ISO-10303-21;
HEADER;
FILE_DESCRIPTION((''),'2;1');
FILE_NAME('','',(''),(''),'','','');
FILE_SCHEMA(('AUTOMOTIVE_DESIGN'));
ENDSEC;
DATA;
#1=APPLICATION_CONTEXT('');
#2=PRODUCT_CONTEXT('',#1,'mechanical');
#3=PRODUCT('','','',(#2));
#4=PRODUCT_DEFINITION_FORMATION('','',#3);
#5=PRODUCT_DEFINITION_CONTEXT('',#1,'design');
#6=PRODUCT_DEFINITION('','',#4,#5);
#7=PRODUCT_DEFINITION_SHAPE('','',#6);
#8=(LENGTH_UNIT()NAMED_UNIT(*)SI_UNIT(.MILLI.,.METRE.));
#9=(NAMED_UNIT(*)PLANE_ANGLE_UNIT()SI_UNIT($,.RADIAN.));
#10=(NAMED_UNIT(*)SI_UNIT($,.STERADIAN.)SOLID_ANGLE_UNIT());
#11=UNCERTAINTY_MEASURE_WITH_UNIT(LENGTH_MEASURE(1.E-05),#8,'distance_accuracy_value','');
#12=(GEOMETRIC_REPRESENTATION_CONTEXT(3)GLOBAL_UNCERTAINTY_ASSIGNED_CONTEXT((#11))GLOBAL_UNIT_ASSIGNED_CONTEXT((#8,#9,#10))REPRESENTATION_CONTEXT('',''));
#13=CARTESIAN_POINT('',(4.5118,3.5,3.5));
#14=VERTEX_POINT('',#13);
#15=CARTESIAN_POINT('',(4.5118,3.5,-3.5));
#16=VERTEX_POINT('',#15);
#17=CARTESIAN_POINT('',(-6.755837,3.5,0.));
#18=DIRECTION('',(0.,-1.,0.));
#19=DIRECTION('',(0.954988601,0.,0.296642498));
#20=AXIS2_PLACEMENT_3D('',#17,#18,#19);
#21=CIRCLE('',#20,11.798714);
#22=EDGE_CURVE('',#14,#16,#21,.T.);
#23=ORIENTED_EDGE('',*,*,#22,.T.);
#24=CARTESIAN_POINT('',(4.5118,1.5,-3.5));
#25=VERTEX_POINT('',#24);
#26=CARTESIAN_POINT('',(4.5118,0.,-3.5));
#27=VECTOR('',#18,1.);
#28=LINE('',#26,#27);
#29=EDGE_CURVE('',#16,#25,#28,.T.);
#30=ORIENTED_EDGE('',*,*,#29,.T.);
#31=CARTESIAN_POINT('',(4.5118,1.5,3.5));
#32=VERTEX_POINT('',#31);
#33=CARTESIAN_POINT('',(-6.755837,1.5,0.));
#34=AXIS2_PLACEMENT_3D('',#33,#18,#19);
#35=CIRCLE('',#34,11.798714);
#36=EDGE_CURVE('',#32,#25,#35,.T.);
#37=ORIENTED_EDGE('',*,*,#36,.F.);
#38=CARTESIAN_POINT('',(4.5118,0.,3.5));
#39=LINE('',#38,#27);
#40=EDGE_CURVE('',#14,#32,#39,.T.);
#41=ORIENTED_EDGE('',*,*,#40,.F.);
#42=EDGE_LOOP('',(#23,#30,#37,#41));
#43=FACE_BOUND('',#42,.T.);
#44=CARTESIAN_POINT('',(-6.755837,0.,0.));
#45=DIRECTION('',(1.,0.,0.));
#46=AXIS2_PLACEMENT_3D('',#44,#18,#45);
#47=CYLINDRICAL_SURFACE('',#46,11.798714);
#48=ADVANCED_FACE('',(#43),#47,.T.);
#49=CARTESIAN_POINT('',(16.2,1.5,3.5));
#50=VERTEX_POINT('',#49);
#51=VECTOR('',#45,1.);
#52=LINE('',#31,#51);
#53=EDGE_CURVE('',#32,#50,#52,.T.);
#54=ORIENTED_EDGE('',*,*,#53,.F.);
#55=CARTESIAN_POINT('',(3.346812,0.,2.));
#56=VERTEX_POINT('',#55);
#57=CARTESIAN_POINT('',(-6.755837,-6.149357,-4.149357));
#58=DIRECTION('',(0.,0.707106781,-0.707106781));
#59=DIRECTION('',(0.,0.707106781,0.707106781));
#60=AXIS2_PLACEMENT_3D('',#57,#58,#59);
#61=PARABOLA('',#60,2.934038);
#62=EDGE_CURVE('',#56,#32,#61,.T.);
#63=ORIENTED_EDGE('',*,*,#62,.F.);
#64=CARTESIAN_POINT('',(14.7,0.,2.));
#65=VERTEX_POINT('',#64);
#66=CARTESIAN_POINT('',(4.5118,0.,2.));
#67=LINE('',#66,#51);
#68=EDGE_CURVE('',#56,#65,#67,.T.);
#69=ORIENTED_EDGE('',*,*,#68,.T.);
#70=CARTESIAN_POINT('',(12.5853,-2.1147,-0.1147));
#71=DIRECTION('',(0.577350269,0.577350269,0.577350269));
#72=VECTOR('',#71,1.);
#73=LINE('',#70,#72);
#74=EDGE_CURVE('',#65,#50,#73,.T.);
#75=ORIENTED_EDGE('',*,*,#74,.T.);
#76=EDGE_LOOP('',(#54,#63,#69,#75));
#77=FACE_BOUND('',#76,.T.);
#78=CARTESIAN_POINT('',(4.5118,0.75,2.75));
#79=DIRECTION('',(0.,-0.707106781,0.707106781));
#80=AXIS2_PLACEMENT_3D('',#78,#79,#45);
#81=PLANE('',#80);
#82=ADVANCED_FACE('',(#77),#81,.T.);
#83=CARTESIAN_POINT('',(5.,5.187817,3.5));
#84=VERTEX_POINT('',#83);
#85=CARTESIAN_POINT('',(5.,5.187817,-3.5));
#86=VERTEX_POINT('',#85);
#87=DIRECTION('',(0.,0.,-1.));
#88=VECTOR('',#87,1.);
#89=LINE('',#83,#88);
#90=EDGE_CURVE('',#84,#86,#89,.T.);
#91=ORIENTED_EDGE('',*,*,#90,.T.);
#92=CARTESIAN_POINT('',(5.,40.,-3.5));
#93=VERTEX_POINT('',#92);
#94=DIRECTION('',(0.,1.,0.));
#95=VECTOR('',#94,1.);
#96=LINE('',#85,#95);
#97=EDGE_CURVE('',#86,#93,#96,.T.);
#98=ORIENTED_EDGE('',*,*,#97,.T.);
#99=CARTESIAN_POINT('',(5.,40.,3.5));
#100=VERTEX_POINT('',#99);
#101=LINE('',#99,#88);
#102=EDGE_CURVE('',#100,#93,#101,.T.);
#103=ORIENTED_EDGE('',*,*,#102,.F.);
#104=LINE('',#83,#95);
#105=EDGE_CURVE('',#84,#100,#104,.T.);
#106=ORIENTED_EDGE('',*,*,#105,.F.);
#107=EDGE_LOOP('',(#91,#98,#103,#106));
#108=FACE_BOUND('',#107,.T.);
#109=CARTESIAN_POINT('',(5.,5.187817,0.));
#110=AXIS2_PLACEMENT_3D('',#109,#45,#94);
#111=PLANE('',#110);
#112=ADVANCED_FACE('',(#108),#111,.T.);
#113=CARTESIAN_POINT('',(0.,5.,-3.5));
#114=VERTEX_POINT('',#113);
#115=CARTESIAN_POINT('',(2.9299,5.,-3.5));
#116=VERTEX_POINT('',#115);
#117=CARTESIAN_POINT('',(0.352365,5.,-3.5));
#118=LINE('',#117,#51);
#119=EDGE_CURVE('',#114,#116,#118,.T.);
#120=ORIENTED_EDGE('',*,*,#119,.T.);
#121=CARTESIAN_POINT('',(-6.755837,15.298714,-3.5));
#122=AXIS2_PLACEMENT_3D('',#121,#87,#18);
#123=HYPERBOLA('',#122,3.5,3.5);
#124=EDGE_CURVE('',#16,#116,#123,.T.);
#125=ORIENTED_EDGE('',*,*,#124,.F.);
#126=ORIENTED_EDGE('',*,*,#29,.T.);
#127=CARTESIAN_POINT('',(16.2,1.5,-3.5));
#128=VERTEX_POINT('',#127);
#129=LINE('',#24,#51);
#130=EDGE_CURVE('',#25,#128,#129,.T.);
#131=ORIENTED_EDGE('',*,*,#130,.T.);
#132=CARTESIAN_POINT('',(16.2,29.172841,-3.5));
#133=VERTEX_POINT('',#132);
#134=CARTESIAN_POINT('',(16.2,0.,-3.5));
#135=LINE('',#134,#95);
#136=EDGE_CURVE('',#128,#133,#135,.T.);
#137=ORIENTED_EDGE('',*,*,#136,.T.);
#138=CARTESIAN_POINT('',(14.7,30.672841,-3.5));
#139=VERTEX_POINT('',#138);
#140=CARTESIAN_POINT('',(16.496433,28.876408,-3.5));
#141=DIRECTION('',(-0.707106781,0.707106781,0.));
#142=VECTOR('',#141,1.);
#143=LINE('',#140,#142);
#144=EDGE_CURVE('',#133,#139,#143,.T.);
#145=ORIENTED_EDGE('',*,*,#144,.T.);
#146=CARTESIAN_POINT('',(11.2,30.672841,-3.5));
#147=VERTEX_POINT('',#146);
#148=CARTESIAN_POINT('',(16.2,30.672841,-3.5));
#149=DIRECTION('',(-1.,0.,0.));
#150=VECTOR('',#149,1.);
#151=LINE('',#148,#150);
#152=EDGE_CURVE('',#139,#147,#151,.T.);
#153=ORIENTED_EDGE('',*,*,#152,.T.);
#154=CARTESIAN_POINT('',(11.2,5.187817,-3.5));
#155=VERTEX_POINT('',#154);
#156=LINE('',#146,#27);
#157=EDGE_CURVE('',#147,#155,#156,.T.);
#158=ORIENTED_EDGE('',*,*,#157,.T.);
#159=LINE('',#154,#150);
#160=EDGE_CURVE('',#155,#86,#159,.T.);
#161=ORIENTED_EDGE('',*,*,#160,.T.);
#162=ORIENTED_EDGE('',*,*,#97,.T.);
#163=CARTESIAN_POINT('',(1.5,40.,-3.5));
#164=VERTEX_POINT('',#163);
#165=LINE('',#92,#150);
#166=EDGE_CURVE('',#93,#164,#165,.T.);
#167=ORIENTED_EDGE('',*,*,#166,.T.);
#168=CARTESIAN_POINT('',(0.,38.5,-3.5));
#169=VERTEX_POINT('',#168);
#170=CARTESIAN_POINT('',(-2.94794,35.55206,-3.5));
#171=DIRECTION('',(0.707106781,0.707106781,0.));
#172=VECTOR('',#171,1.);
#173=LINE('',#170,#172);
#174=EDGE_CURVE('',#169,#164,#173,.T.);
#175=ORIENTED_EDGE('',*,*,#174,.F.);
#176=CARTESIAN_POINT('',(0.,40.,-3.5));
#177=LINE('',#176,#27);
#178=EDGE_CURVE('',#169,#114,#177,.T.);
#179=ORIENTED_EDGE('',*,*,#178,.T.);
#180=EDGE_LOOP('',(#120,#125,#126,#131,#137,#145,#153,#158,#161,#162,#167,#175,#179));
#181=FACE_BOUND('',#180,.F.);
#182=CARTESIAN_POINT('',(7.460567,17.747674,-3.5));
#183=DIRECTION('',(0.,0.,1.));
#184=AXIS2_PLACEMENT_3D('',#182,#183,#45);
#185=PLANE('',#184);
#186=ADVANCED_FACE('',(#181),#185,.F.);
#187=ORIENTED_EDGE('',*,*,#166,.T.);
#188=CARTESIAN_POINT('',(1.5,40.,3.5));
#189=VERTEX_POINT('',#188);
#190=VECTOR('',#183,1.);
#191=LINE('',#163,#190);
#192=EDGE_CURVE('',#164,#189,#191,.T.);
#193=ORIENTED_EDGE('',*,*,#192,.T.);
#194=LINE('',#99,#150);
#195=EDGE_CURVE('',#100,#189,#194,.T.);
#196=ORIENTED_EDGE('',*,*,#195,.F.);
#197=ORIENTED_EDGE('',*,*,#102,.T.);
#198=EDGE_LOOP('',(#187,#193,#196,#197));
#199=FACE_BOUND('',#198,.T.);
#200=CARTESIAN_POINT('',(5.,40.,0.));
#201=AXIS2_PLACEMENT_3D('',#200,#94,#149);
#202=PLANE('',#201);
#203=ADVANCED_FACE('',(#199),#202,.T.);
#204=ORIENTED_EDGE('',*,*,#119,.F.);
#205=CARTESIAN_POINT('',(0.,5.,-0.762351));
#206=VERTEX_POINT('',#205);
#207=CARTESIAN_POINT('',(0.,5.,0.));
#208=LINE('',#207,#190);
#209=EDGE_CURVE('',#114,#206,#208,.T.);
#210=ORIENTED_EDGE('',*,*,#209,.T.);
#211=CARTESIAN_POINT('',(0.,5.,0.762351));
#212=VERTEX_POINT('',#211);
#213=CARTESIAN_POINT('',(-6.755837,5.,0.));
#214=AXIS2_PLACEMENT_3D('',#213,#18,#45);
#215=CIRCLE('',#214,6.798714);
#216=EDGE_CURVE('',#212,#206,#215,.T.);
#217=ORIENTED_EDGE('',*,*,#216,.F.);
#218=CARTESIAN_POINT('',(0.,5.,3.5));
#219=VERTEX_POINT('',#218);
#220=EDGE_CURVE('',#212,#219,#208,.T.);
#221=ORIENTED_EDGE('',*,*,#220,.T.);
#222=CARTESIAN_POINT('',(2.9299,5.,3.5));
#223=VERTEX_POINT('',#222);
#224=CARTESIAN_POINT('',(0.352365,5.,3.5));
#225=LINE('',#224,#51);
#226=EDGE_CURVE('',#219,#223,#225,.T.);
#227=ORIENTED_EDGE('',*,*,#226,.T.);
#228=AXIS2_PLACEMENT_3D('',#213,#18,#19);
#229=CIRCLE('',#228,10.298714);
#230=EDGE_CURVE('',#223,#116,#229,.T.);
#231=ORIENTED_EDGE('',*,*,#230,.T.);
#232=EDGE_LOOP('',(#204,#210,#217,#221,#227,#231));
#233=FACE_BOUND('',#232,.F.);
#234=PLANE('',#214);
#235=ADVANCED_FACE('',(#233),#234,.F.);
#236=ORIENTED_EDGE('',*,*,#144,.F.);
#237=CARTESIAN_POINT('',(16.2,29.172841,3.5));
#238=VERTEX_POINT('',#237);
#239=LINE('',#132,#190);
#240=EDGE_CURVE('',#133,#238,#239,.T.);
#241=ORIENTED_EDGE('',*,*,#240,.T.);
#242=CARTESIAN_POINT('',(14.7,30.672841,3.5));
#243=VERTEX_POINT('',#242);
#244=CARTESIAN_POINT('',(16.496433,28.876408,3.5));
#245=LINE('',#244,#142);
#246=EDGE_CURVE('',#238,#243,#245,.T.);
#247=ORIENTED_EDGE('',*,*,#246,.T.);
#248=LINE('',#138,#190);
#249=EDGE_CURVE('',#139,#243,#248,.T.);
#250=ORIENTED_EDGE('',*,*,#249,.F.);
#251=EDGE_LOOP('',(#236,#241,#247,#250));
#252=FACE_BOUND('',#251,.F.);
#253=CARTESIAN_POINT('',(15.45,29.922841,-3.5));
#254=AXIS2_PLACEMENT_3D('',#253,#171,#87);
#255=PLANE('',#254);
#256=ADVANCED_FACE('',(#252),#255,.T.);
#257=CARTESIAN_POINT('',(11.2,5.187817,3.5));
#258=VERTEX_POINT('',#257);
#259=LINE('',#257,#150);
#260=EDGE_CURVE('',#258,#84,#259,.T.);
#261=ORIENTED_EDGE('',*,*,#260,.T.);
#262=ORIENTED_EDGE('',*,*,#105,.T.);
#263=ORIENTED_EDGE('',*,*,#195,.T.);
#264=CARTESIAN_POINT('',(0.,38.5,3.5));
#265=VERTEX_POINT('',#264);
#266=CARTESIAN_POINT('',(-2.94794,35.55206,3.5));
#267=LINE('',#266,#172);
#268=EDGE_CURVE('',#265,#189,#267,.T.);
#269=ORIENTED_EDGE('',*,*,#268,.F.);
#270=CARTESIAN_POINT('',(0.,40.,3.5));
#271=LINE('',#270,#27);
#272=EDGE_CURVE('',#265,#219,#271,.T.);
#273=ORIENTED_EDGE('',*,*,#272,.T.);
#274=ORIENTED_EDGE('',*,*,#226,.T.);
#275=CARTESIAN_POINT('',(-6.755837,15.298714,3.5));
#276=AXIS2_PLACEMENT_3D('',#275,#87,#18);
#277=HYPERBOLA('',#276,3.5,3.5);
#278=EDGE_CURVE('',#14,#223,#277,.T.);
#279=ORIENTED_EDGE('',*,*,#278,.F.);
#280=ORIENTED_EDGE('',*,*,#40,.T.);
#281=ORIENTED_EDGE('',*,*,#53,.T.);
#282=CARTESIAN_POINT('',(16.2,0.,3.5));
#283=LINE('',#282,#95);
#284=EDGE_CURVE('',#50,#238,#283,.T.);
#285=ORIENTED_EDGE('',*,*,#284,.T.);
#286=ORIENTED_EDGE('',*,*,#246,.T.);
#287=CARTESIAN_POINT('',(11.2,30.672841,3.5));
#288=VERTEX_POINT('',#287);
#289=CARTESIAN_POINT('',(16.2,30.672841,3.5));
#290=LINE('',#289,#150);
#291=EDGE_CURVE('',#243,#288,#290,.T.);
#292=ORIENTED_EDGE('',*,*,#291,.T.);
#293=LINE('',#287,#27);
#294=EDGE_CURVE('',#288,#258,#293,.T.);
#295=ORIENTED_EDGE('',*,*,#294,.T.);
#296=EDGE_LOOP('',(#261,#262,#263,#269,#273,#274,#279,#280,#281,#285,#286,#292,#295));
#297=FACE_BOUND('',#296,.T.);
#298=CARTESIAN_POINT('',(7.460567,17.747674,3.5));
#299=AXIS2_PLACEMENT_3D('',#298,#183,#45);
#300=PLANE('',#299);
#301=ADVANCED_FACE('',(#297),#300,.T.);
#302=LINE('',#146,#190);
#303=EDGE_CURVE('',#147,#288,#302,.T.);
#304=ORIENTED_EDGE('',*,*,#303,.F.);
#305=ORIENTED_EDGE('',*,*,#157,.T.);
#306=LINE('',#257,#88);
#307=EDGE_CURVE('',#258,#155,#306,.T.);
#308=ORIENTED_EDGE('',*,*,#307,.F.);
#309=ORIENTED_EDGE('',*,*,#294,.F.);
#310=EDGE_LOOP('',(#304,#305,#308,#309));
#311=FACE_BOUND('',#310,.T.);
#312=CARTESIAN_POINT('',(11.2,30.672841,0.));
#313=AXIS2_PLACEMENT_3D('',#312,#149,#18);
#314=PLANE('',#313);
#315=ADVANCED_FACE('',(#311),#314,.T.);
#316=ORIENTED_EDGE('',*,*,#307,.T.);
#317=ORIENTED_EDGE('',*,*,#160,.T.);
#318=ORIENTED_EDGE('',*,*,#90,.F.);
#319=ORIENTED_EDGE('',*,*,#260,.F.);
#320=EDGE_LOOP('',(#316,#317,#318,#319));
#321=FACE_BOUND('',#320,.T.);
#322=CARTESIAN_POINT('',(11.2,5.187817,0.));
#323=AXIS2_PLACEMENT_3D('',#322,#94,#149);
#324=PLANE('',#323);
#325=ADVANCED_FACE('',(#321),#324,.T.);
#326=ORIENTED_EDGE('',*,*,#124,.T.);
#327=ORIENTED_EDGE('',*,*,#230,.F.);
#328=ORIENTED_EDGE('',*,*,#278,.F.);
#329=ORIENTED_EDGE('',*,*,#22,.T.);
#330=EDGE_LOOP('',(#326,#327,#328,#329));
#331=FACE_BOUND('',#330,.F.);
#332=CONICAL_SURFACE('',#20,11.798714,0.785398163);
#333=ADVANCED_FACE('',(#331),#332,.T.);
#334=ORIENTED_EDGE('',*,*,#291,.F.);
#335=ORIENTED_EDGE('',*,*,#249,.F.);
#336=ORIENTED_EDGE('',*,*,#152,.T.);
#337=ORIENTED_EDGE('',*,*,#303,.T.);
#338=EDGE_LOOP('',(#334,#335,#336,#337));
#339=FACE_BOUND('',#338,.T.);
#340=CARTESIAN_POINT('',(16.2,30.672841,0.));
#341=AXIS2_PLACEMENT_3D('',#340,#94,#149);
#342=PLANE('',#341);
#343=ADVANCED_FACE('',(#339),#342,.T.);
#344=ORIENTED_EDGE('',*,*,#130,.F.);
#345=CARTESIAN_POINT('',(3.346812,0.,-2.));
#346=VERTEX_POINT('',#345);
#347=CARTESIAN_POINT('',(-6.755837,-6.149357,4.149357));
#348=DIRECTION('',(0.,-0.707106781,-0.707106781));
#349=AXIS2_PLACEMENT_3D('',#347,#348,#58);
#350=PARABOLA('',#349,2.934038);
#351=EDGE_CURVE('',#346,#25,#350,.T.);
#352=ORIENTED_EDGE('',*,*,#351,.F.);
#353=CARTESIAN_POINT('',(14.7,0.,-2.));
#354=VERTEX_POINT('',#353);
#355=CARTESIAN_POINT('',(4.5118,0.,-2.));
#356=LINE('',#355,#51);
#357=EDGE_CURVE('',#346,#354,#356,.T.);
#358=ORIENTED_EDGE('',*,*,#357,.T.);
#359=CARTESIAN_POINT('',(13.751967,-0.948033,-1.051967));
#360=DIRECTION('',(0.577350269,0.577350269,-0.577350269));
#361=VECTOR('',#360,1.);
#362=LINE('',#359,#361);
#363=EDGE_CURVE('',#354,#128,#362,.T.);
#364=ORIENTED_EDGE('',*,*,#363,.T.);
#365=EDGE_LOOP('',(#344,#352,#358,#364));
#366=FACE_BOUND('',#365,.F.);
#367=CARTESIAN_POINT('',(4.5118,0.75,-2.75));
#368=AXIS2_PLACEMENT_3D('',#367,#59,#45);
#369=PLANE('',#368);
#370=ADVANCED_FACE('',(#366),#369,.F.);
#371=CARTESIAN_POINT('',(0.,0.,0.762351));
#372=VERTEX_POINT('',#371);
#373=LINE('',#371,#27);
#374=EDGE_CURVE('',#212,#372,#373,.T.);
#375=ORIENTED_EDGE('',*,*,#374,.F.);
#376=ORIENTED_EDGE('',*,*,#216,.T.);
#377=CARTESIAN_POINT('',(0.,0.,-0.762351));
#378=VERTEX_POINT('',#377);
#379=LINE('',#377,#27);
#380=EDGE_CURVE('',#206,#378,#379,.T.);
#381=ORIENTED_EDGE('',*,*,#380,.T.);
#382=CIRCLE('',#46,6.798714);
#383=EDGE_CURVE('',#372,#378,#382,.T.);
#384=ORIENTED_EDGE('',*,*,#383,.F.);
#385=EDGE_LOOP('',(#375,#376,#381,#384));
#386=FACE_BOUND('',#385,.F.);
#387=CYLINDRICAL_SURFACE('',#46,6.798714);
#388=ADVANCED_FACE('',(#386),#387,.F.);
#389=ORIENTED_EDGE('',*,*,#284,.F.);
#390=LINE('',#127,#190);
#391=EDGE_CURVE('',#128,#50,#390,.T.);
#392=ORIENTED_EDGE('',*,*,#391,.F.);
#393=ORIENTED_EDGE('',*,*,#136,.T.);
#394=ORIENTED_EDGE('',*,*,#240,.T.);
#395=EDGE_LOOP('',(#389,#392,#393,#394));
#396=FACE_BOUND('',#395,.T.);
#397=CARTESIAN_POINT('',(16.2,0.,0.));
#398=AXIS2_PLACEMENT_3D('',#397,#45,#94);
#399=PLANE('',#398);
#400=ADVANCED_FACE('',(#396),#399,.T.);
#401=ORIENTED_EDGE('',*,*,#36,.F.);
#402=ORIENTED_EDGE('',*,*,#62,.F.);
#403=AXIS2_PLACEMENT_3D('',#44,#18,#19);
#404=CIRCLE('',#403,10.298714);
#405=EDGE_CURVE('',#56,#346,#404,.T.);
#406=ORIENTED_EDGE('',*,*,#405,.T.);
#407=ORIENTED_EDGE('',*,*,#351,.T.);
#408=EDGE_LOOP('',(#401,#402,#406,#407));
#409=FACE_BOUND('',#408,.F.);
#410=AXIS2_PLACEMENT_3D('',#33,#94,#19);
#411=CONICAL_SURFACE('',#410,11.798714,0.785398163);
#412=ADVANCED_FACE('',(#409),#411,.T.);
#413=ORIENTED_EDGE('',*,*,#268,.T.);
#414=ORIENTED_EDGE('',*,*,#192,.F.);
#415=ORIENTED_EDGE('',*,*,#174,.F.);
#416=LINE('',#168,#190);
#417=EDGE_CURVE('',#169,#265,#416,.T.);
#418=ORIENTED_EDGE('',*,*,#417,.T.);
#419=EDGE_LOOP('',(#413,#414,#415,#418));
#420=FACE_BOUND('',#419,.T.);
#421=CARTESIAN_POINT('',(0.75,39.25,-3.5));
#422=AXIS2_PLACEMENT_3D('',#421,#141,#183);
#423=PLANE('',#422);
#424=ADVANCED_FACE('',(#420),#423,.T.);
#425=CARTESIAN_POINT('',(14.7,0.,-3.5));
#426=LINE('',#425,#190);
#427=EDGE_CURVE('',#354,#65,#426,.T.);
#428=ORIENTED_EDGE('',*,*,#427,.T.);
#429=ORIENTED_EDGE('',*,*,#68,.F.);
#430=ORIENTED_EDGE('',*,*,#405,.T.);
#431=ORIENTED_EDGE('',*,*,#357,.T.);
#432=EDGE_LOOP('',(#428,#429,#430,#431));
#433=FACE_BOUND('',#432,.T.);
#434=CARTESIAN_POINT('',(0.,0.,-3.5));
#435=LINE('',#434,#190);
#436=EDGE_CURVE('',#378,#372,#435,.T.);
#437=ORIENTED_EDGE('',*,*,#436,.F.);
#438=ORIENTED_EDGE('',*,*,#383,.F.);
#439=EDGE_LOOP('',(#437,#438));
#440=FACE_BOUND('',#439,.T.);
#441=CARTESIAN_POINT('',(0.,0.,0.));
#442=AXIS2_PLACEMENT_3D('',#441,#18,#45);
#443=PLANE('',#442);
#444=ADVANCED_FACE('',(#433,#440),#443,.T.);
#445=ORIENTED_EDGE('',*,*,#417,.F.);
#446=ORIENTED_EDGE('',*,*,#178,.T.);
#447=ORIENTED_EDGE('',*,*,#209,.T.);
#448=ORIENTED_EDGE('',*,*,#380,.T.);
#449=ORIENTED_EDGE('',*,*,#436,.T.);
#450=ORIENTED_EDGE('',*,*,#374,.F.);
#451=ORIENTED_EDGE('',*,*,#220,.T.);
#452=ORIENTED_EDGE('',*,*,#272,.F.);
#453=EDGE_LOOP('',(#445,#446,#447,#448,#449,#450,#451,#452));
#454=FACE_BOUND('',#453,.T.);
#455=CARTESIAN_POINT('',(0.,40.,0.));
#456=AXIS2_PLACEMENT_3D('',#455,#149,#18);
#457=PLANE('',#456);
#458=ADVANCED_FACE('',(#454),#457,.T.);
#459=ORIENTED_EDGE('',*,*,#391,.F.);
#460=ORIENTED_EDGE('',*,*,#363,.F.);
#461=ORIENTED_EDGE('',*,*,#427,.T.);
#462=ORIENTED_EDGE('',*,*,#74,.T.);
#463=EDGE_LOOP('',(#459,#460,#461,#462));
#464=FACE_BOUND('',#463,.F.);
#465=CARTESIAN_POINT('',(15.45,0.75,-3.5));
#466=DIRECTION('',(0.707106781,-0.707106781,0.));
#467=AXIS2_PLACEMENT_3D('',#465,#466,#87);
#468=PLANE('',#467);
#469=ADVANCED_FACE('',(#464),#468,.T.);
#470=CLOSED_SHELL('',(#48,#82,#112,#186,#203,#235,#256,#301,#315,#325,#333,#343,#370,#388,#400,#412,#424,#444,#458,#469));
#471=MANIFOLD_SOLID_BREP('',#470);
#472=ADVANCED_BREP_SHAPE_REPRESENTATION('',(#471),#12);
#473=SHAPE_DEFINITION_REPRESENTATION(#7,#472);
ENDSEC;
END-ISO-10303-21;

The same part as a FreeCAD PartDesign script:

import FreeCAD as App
import Part
import Sketcher


def edges_at(feature, points):
    """Names of the edges that pass closest to the given points."""
    edges = feature.Shape.Edges
    near = lambda p: min(range(len(edges)), key=lambda i: edges[i].distToShape(Part.Vertex(*p))[0])
    return sorted({f"Edge{near(p) + 1}" for p in points})


def add_polygon(sketch, points):
    """Adds a closed chain of lines whose ends are joined by coincident constraints."""
    first, n = sketch.GeometryCount, len(points)
    for a, b in zip(points, points[1:] + points[:1]):
        sketch.addGeometry(Part.LineSegment(App.Vector(*a, 0), App.Vector(*b, 0)), False)
    for i in range(n):
        sketch.addConstraint(Sketcher.Constraint("Coincident", first + i, 2, first + (i + 1) % n, 1))

doc = App.newDocument("Part")
body = doc.addObject("PartDesign::Body", "Body")

sketch1 = body.newObject("Sketcher::SketchObject", "Sketch")
sketch1.AttachmentSupport = (doc.getObject("XY_Plane"), [""])
sketch1.MapMode = "FlatFace"
add_polygon(sketch1, [(5, 40), (0, 40), (0, 0), (16.2, 0), (16.2, 30.672841), (11.2, 30.672841), (11.2, 5.187817), (5, 5.187817)])
sketch1.addConstraint(Sketcher.Constraint("Horizontal", 0))
sketch1.addConstraint(Sketcher.Constraint("Vertical", 1))
sketch1.addConstraint(Sketcher.Constraint("Horizontal", 2))
sketch1.addConstraint(Sketcher.Constraint("Vertical", 3))
sketch1.addConstraint(Sketcher.Constraint("Horizontal", 4))
sketch1.addConstraint(Sketcher.Constraint("Vertical", 5))
sketch1.addConstraint(Sketcher.Constraint("Horizontal", 6))
sketch1.addConstraint(Sketcher.Constraint("Vertical", 7))
sketch1.addConstraint(Sketcher.Constraint("Coincident", 1, 2, -1, 1))
sketch1.addConstraint(Sketcher.Constraint("Equal", 0, 4))
sketch1.addConstraint(Sketcher.Constraint("DistanceX", 0, 2, 0, 1, 5.0))
sketch1.addConstraint(Sketcher.Constraint("DistanceY", 1, 2, 1, 1, 40.0))
sketch1.addConstraint(Sketcher.Constraint("DistanceX", 2, 1, 2, 2, 16.2))
sketch1.addConstraint(Sketcher.Constraint("DistanceY", 3, 1, 3, 2, 30.672841))
sketch1.addConstraint(Sketcher.Constraint("DistanceY", 5, 2, 5, 1, 25.485024))
pad1 = body.newObject("PartDesign::Pad", "Pad")
pad1.Profile = sketch1
pad1.Length = 7
pad1.Midplane = True

sketch2 = body.newObject("Sketcher::SketchObject", "Sketch001")
sketch2.AttachmentSupport = (doc.getObject("XZ_Plane"), [""])
sketch2.MapMode = "FlatFace"
sketch2.addGeometry(Part.Circle(App.Vector(-6.755837, 0, 0), App.Vector(0, 0, 1), 11.798714), False)
sketch2.addGeometry(Part.Circle(App.Vector(-6.755837, 0, 0), App.Vector(0, 0, 1), 6.798714), False)
sketch2.addConstraint(Sketcher.Constraint("Coincident", 1, 3, 0, 3))
sketch2.addConstraint(Sketcher.Constraint("PointOnObject", 0, 3, -1))
sketch2.addConstraint(Sketcher.Constraint("Diameter", 0, 23.597428))
sketch2.addConstraint(Sketcher.Constraint("Diameter", 1, 13.597428))
sketch2.addConstraint(Sketcher.Constraint("DistanceX", 0, 3, -1, 1, 6.755837))
pad2 = body.newObject("PartDesign::Pad", "Pad001")
pad2.Profile = sketch2
pad2.Length = 5
pad2.Reversed = True
doc.recompute()

chamfer = body.newObject("PartDesign::Chamfer", "Chamfer")
chamfer.Base = (pad2, edges_at(pad2, [
    (-18.555, 0, 0),
    (-18.555, 5, 0),
    (16.2, 0, 0),
    (10.356, 0, -3.5),
    (10.356, 0, 3.5),
    (16.2, 30.673, 0),
    (0, 40, 0),
]))
chamfer.Size = 1.5

doc.recompute()
